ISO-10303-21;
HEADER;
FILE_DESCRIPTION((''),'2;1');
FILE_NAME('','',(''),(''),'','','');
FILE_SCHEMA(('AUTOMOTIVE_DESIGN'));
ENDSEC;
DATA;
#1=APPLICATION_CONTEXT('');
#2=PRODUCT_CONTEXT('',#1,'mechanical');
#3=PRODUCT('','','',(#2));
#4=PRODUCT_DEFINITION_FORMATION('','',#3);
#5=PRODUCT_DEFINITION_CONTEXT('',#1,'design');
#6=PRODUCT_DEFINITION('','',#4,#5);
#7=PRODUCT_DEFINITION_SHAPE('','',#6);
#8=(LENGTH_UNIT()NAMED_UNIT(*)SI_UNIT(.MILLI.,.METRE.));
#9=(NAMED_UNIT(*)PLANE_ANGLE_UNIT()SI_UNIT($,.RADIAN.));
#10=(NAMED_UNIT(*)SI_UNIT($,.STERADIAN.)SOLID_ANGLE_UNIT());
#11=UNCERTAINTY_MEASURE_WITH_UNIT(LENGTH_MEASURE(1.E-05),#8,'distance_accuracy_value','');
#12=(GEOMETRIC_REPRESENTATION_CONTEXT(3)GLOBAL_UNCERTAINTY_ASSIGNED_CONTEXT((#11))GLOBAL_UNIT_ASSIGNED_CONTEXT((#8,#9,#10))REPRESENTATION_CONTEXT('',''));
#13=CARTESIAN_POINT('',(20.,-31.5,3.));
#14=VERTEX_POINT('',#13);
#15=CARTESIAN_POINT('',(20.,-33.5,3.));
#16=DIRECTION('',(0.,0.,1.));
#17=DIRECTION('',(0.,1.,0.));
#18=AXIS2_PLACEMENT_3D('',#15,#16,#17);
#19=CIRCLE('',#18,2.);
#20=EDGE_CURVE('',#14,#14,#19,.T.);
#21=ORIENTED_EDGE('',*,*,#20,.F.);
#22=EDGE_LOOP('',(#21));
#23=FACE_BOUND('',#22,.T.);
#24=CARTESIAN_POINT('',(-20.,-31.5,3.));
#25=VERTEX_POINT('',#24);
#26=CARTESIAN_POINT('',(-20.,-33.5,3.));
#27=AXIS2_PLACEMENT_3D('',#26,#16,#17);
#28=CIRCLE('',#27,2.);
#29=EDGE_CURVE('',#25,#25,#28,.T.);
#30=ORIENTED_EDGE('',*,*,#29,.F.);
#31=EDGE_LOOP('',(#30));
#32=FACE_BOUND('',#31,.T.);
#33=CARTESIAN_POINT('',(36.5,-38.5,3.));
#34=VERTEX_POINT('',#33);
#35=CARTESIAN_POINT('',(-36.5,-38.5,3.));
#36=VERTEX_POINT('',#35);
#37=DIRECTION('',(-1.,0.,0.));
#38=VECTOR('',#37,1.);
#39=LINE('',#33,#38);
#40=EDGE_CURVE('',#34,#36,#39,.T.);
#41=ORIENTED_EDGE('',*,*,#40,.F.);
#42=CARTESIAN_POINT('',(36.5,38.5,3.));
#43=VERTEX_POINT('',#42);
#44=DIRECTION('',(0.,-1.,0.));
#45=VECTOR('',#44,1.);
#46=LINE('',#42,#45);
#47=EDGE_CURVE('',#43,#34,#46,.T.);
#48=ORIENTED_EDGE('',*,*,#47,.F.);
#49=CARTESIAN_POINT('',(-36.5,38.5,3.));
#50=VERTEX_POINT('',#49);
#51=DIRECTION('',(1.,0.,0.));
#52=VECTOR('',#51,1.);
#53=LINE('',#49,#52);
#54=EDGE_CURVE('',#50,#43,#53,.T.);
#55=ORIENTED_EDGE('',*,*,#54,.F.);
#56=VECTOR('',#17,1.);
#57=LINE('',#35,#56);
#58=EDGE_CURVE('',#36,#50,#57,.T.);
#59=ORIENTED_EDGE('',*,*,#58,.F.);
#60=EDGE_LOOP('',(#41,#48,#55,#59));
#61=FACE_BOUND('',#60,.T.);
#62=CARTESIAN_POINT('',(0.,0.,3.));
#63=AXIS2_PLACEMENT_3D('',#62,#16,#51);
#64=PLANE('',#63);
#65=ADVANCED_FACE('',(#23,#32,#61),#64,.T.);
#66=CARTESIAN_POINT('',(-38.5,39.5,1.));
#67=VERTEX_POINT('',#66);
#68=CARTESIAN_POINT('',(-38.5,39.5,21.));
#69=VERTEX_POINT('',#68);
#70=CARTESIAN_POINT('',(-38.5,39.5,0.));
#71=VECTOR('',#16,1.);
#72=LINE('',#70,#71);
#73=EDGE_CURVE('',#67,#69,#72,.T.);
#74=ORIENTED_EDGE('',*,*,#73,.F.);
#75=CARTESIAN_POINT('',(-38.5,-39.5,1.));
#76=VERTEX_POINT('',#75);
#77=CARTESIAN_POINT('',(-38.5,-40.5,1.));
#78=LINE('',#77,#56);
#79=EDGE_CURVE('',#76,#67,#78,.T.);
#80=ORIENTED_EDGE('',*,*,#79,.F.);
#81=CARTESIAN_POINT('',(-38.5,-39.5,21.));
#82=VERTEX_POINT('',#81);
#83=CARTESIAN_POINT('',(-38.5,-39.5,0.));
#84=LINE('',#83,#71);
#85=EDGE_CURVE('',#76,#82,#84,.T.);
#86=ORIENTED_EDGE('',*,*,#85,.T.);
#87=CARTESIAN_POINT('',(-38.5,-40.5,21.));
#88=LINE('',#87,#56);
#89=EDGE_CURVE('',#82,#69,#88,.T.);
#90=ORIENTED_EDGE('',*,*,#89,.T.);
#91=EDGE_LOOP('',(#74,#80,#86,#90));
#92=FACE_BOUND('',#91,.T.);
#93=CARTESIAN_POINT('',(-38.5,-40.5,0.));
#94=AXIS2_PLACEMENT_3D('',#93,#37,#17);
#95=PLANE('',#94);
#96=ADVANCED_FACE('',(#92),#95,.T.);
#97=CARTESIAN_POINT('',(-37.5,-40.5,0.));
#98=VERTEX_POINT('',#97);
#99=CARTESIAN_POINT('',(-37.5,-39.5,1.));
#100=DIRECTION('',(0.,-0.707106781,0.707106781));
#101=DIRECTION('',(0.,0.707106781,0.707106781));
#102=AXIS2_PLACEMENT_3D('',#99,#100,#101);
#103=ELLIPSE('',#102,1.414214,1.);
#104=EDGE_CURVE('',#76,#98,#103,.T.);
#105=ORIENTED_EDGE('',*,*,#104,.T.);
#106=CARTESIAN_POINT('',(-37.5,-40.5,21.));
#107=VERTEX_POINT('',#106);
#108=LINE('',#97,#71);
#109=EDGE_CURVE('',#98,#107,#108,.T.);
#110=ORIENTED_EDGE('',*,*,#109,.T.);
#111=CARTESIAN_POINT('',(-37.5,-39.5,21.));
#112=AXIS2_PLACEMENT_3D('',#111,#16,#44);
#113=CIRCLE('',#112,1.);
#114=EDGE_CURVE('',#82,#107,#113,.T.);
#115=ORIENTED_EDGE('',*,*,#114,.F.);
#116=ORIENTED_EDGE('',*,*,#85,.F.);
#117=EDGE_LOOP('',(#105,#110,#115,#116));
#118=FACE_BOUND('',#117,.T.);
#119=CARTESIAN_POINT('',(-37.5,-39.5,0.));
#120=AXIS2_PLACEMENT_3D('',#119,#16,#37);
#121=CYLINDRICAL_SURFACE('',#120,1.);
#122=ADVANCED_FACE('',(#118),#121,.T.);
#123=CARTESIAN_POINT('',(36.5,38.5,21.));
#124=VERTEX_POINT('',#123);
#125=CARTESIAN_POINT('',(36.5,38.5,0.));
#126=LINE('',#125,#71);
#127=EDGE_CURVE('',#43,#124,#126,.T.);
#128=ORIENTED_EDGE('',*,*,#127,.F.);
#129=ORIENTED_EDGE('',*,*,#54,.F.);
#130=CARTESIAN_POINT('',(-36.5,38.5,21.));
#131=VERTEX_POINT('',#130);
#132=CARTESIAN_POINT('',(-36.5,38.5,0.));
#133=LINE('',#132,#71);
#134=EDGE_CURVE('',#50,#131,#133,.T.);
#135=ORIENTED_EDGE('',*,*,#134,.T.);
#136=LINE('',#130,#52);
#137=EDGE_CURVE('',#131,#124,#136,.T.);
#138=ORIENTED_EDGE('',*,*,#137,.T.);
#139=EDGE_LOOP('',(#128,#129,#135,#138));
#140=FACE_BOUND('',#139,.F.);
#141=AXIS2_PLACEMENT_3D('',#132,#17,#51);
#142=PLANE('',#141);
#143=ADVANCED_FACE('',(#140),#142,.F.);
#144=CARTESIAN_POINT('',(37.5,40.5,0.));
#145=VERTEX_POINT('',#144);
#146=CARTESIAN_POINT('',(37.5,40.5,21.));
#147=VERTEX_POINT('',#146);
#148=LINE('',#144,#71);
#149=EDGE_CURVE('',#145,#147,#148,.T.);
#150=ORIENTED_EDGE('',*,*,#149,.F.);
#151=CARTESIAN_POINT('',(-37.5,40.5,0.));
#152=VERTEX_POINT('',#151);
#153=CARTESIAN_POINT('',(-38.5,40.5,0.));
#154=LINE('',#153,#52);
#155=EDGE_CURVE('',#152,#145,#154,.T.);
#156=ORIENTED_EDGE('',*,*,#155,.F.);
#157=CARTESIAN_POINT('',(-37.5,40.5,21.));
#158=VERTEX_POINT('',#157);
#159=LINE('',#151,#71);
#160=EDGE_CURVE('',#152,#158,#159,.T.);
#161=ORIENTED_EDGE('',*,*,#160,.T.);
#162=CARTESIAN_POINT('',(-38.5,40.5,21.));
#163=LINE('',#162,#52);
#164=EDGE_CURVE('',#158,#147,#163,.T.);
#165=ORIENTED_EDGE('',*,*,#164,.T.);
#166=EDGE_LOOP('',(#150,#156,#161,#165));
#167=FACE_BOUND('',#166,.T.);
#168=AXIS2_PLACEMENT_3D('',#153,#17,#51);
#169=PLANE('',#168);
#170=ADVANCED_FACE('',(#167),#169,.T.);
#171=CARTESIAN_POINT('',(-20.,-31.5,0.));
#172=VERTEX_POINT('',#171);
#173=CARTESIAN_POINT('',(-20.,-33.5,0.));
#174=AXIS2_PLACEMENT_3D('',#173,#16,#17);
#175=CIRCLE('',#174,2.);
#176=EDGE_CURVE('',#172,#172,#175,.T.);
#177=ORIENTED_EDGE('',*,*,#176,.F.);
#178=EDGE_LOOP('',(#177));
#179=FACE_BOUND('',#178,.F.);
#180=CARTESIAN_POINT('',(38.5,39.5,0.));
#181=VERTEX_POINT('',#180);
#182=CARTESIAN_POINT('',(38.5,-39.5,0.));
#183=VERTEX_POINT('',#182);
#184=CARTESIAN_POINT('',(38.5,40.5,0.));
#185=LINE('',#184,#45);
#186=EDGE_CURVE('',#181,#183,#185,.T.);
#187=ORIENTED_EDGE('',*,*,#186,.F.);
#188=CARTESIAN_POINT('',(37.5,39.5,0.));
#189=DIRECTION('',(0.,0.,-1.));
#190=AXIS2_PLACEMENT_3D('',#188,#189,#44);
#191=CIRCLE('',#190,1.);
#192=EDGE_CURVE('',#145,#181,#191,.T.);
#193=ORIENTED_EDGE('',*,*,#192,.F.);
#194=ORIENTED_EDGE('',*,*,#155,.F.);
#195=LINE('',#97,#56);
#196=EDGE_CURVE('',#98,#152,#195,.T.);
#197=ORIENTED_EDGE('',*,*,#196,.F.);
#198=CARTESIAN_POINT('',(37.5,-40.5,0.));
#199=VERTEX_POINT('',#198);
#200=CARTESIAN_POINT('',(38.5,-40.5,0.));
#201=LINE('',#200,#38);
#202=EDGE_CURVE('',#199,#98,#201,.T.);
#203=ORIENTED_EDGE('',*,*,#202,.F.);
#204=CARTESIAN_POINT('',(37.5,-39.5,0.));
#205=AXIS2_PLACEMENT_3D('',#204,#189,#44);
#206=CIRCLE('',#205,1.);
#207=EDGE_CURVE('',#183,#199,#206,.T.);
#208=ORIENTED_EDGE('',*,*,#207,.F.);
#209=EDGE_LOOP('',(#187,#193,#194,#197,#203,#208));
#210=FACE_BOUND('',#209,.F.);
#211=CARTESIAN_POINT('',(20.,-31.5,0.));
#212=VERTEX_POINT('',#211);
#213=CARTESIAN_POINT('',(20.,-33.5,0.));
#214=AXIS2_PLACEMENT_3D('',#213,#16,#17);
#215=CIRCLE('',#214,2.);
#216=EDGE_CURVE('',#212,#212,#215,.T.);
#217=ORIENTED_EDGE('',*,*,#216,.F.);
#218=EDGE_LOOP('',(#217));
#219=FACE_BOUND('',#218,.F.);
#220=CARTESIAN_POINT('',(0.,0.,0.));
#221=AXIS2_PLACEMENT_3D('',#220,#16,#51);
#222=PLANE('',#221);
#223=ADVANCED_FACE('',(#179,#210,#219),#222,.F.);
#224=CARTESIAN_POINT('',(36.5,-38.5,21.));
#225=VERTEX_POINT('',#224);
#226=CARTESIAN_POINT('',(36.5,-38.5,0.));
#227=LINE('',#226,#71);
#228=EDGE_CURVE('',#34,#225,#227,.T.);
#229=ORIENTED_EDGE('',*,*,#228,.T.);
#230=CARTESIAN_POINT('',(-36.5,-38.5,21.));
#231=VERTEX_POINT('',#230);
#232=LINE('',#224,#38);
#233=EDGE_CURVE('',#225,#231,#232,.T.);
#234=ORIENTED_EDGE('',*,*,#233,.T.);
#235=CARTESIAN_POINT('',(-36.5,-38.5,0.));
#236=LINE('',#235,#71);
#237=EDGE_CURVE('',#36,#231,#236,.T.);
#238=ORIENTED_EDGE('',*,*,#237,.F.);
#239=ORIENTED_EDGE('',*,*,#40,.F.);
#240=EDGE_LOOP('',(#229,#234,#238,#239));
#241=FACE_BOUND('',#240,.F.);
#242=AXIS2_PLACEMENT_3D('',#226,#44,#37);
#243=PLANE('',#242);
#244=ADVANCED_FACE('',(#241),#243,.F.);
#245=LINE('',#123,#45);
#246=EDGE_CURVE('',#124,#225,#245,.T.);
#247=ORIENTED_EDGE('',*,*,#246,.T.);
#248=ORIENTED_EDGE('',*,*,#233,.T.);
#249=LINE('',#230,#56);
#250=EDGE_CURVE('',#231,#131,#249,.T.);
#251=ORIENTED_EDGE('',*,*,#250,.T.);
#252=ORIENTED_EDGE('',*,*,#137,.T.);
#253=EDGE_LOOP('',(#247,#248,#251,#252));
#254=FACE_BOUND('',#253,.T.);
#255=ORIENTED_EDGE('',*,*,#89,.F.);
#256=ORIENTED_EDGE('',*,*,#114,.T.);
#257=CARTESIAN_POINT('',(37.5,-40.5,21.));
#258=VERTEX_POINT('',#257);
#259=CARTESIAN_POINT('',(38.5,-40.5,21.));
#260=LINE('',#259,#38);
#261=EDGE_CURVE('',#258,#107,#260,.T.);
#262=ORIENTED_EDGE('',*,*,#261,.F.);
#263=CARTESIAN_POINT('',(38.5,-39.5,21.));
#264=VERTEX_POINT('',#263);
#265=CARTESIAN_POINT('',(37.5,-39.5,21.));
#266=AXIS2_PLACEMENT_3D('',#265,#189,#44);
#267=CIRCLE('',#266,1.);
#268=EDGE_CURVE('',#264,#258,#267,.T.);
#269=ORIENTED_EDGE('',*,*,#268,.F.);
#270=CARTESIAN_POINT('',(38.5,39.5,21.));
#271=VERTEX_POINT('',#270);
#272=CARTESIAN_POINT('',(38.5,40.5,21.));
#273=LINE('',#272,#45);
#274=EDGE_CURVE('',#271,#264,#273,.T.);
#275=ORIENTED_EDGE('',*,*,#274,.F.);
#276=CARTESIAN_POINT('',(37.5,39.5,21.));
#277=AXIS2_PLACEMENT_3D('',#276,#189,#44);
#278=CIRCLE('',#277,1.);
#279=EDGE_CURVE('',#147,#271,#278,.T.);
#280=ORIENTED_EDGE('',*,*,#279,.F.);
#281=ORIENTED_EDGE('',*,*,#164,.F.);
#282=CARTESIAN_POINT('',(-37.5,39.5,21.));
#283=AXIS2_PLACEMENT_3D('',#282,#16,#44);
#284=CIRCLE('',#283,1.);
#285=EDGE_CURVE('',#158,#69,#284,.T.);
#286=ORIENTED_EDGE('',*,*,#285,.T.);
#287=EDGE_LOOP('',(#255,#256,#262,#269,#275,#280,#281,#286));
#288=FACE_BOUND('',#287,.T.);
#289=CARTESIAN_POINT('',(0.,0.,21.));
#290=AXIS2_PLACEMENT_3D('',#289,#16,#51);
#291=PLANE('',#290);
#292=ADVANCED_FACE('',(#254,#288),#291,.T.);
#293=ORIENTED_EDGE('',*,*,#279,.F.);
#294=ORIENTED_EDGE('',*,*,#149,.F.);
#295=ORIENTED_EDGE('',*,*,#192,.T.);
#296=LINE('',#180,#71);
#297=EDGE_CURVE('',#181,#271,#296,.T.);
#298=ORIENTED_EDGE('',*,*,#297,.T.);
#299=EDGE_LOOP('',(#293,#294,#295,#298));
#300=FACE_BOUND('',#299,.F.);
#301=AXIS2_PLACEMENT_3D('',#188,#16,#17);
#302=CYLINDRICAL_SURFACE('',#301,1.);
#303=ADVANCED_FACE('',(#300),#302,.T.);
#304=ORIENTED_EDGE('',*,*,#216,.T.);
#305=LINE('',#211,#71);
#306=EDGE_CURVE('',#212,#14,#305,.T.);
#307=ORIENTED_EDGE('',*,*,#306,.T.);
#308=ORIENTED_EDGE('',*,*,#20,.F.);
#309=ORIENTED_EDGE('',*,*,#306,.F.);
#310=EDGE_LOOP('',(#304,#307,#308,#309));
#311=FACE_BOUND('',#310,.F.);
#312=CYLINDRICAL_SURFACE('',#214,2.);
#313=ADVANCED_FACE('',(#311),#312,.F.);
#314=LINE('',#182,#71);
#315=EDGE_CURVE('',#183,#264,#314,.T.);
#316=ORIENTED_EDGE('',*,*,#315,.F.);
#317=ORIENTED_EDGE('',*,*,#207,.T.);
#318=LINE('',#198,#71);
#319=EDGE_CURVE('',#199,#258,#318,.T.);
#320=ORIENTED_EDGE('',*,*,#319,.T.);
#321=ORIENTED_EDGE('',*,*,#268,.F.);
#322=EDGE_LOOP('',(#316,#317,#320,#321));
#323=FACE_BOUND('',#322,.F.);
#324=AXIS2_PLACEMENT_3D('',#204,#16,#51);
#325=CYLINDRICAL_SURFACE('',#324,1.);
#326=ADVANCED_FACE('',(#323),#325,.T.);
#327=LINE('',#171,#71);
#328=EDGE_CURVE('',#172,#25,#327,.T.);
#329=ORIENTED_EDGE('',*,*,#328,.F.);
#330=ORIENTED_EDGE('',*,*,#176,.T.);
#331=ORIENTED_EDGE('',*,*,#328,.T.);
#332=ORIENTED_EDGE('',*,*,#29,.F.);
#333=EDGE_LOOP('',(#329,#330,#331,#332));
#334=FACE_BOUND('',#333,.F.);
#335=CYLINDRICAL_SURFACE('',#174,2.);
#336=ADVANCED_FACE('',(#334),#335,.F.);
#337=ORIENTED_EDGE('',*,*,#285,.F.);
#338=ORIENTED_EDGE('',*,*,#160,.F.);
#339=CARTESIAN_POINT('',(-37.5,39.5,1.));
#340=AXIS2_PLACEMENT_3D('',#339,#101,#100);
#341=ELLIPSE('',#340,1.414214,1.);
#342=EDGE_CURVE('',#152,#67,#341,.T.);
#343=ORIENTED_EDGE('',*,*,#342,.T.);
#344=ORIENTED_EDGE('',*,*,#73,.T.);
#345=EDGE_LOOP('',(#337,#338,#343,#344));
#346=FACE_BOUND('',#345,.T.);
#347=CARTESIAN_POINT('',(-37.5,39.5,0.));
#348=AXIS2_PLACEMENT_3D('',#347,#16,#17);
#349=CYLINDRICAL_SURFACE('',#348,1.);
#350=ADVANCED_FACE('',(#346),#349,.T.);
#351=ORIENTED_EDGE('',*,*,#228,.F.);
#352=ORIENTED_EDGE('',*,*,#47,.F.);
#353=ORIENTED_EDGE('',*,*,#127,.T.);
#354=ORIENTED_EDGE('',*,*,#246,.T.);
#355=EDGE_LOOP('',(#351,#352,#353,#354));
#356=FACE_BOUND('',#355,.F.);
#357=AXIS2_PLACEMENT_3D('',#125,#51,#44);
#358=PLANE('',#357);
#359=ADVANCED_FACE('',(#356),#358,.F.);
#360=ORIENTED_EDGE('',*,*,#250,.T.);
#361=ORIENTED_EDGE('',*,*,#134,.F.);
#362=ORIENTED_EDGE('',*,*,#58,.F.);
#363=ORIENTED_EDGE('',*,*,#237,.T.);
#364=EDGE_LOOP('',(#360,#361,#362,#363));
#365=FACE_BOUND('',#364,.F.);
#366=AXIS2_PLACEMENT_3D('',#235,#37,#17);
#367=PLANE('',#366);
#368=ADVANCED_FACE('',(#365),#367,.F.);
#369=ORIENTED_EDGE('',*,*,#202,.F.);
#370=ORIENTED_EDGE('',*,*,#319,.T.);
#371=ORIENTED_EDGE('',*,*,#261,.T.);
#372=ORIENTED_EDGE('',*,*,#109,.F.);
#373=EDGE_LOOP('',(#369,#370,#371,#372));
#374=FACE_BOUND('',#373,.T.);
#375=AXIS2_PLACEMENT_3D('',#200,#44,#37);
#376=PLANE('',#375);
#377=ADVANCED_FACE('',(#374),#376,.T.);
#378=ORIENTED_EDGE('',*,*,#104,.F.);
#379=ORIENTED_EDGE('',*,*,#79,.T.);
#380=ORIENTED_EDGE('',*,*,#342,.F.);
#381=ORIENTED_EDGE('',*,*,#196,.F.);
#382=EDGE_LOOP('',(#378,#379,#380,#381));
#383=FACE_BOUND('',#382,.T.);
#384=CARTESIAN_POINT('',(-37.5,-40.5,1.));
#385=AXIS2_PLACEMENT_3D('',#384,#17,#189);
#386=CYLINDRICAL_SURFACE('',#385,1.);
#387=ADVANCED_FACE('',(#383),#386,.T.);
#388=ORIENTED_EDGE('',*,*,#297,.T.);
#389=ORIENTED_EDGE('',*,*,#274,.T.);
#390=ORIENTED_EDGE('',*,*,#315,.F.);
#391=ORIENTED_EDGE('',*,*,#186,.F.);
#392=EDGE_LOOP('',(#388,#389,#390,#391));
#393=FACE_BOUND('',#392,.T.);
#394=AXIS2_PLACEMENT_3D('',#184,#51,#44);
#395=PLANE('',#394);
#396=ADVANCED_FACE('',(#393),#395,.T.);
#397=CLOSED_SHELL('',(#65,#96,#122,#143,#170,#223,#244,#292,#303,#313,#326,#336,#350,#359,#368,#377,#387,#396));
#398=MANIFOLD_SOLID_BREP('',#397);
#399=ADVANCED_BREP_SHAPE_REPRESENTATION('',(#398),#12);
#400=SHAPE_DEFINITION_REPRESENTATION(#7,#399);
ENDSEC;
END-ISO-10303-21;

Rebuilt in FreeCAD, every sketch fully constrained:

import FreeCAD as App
import Part
import Sketcher

V = App.Vector


def edges_at(feature, points):
    """Names of the edges that pass closest to the given points."""
    edges = feature.Shape.Edges
    near = lambda p: min(range(len(edges)), key=lambda i: edges[i].distToShape(Part.Vertex(*p))[0])
    return sorted({f"Edge{near(p) + 1}" for p in points})

doc = App.newDocument("Part")
params = doc.addObject("Spreadsheet::Sheet", "Params")
for row, (alias, value) in enumerate([
    ("sketch1_width", "77 mm"),
    ("sketch1_width2", "73 mm"),
    ("sketch1_height", "81 mm"),
    ("pad1_length", "21 mm"),
    ("sketch2_width", "73 mm"),
    ("sketch2_height", "77 mm"),
    ("pad2_length", "3 mm"),
    ("sketch3_diameter", "4 mm"),
    ("hole_diameter", "4 mm"),
    ("fillet_radius", "1 mm"),
    ("fillet2_radius", "1 mm"),
], start=1):
    params.set(f"A{row}", alias)
    params.set(f"B{row}", "=" + value)
    params.setAlias(f"B{row}", alias)

body = doc.addObject("PartDesign::Body", "Body")

sketch1 = body.newObject("Sketcher::SketchObject", "Sketch")
sketch1.AttachmentSupport = (doc.getObject("XY_Plane"), [""])
sketch1.MapMode = "FlatFace"
sketch1.addGeometry(Part.LineSegment(V(38, 40, 0), V(-38, 40, 0)), False)
sketch1.addGeometry(Part.LineSegment(V(-38, 40, 0), V(-38, -40, 0)), False)
sketch1.addGeometry(Part.LineSegment(V(-38, -40, 0), V(38, -40, 0)), False)
sketch1.addGeometry(Part.LineSegment(V(38, -40, 0), V(38, 40, 0)), False)
sketch1.addGeometry(Part.LineSegment(V(-36, -38, 0), V(-36, 38, 0)), False)
sketch1.addGeometry(Part.LineSegment(V(-36, 38, 0), V(36, 38, 0)), False)
sketch1.addGeometry(Part.LineSegment(V(36, 38, 0), V(36, -38, 0)), False)
sketch1.addGeometry(Part.LineSegment(V(36, -38, 0), V(-36, -38, 0)), False)
sketch1.addConstraint(Sketcher.Constraint("Coincident", 0, 2, 1, 1))
sketch1.addConstraint(Sketcher.Constraint("Coincident", 1, 2, 2, 1))
sketch1.addConstraint(Sketcher.Constraint("Coincident", 2, 2, 3, 1))
sketch1.addConstraint(Sketcher.Constraint("Coincident", 3, 2, 0, 1))
sketch1.addConstraint(Sketcher.Constraint("Coincident", 4, 2, 5, 1))
sketch1.addConstraint(Sketcher.Constraint("Coincident", 5, 2, 6, 1))
sketch1.addConstraint(Sketcher.Constraint("Coincident", 6, 2, 7, 1))
sketch1.addConstraint(Sketcher.Constraint("Coincident", 7, 2, 4, 1))
sketch1.addConstraint(Sketcher.Constraint("Horizontal", 0))
sketch1.addConstraint(Sketcher.Constraint("Vertical", 1))
sketch1.addConstraint(Sketcher.Constraint("Horizontal", 2))
sketch1.addConstraint(Sketcher.Constraint("Vertical", 3))
sketch1.addConstraint(Sketcher.Constraint("Vertical", 4))
sketch1.addConstraint(Sketcher.Constraint("Horizontal", 5))
sketch1.addConstraint(Sketcher.Constraint("Vertical", 6))
sketch1.addConstraint(Sketcher.Constraint("Horizontal", 7))
sketch1.addConstraint(Sketcher.Constraint("Symmetric", 0, 2, 2, 2, -1, 1))
sketch1.addConstraint(Sketcher.Constraint("Symmetric", 4, 2, 6, 2, -1, 1))
sketch1.addConstraint(Sketcher.Constraint("Equal", 2, 4))
sketch1.addConstraint(Sketcher.Constraint("DistanceX", 0, 2, 0, 1, 77.0))
sketch1.addConstraint(Sketcher.Constraint("DistanceX", 5, 1, 5, 2, 73.0))
sketch1.addConstraint(Sketcher.Constraint("DistanceY", 1, 2, 1, 1, 81.0))
sketch1.setExpression("Constraints[19]", "Params.sketch1_width")
sketch1.setExpression("Constraints[20]", "Params.sketch1_width2")
sketch1.setExpression("Constraints[21]", "Params.sketch1_height")
pad1 = body.newObject("PartDesign::Pad", "Pad")
pad1.Profile = sketch1
pad1.setExpression("Length", "Params.pad1_length")

sketch2 = body.newObject("Sketcher::SketchObject", "Sketch001")
sketch2.AttachmentSupport = (doc.getObject("XY_Plane"), [""])
sketch2.MapMode = "FlatFace"
sketch2.addGeometry(Part.LineSegment(V(36, 38, 0), V(-36, 38, 0)), False)
sketch2.addGeometry(Part.LineSegment(V(-36, 38, 0), V(-36, -38, 0)), False)
sketch2.addGeometry(Part.LineSegment(V(-36, -38, 0), V(36, -38, 0)), False)
sketch2.addGeometry(Part.LineSegment(V(36, -38, 0), V(36, 38, 0)), False)
sketch2.addConstraint(Sketcher.Constraint("Coincident", 0, 2, 1, 1))
sketch2.addConstraint(Sketcher.Constraint("Coincident", 1, 2, 2, 1))
sketch2.addConstraint(Sketcher.Constraint("Coincident", 2, 2, 3, 1))
sketch2.addConstraint(Sketcher.Constraint("Coincident", 3, 2, 0, 1))
sketch2.addConstraint(Sketcher.Constraint("Horizontal", 0))
sketch2.addConstraint(Sketcher.Constraint("Vertical", 1))
sketch2.addConstraint(Sketcher.Constraint("Horizontal", 2))
sketch2.addConstraint(Sketcher.Constraint("Vertical", 3))
sketch2.addConstraint(Sketcher.Constraint("Symmetric", 0, 2, 2, 2, -1, 1))
sketch2.addConstraint(Sketcher.Constraint("DistanceX", 0, 2, 0, 1, 73.0))
sketch2.addConstraint(Sketcher.Constraint("DistanceY", 1, 2, 1, 1, 77.0))
sketch2.setExpression("Constraints[9]", "Params.sketch2_width")
sketch2.setExpression("Constraints[10]", "Params.sketch2_height")
pad2 = body.newObject("PartDesign::Pad", "Pad001")
pad2.Profile = sketch2
pad2.setExpression("Length", "Params.pad2_length")

sketch3 = body.newObject("Sketcher::SketchObject", "Sketch002")
sketch3.AttachmentSupport = (doc.getObject("XY_Plane"), [""])
sketch3.MapMode = "FlatFace"
sketch3.addGeometry(Part.Circle(V(-20, -33.5, 0), V(0, 0, 1), 2), False)
sketch3.addGeometry(Part.Circle(V(20, -33.5, 0), V(0, 0, 1), 2), False)
sketch3.addConstraint(Sketcher.Constraint("Equal", 0, 1))
sketch3.addConstraint(Sketcher.Constraint("Symmetric", 0, 3, 1, 3, -2))
sketch3.addConstraint(Sketcher.Constraint("Diameter", 0, 4.0))
sketch3.addConstraint(Sketcher.Constraint("DistanceX", 0, 3, -1, 1, 20.0))
sketch3.addConstraint(Sketcher.Constraint("DistanceY", 0, 3, -1, 1, 33.5))
sketch3.setExpression("Constraints[2]", "Params.sketch3_diameter")
doc.recompute()
hole = body.newObject("PartDesign::Hole", "Hole")
hole.Profile = sketch3
hole.ThreadType = "None"
hole.setExpression("Diameter", "Params.hole_diameter")
hole.DepthType = "ThroughAll"
hole.Reversed = True
doc.recompute()

fillet = body.newObject("PartDesign::Fillet", "Fillet")
fillet.Base = (hole, edges_at(hole, [(38.5, 40.5, 10.5)]))
fillet.setExpression("Radius", "Params.fillet_radius")
doc.recompute()

fillet2 = body.newObject("PartDesign::Fillet", "Fillet001")
fillet2.Base = (fillet, edges_at(fillet, [
    (-38.5, 40.5, 10.5),
    (-38.5, -40.5, 10.5),
    (38.5, -40.5, 10.5),
    (-38.5, 0, 0),
]))
fillet2.setExpression("Radius", "Params.fillet2_radius")

doc.recompute()
